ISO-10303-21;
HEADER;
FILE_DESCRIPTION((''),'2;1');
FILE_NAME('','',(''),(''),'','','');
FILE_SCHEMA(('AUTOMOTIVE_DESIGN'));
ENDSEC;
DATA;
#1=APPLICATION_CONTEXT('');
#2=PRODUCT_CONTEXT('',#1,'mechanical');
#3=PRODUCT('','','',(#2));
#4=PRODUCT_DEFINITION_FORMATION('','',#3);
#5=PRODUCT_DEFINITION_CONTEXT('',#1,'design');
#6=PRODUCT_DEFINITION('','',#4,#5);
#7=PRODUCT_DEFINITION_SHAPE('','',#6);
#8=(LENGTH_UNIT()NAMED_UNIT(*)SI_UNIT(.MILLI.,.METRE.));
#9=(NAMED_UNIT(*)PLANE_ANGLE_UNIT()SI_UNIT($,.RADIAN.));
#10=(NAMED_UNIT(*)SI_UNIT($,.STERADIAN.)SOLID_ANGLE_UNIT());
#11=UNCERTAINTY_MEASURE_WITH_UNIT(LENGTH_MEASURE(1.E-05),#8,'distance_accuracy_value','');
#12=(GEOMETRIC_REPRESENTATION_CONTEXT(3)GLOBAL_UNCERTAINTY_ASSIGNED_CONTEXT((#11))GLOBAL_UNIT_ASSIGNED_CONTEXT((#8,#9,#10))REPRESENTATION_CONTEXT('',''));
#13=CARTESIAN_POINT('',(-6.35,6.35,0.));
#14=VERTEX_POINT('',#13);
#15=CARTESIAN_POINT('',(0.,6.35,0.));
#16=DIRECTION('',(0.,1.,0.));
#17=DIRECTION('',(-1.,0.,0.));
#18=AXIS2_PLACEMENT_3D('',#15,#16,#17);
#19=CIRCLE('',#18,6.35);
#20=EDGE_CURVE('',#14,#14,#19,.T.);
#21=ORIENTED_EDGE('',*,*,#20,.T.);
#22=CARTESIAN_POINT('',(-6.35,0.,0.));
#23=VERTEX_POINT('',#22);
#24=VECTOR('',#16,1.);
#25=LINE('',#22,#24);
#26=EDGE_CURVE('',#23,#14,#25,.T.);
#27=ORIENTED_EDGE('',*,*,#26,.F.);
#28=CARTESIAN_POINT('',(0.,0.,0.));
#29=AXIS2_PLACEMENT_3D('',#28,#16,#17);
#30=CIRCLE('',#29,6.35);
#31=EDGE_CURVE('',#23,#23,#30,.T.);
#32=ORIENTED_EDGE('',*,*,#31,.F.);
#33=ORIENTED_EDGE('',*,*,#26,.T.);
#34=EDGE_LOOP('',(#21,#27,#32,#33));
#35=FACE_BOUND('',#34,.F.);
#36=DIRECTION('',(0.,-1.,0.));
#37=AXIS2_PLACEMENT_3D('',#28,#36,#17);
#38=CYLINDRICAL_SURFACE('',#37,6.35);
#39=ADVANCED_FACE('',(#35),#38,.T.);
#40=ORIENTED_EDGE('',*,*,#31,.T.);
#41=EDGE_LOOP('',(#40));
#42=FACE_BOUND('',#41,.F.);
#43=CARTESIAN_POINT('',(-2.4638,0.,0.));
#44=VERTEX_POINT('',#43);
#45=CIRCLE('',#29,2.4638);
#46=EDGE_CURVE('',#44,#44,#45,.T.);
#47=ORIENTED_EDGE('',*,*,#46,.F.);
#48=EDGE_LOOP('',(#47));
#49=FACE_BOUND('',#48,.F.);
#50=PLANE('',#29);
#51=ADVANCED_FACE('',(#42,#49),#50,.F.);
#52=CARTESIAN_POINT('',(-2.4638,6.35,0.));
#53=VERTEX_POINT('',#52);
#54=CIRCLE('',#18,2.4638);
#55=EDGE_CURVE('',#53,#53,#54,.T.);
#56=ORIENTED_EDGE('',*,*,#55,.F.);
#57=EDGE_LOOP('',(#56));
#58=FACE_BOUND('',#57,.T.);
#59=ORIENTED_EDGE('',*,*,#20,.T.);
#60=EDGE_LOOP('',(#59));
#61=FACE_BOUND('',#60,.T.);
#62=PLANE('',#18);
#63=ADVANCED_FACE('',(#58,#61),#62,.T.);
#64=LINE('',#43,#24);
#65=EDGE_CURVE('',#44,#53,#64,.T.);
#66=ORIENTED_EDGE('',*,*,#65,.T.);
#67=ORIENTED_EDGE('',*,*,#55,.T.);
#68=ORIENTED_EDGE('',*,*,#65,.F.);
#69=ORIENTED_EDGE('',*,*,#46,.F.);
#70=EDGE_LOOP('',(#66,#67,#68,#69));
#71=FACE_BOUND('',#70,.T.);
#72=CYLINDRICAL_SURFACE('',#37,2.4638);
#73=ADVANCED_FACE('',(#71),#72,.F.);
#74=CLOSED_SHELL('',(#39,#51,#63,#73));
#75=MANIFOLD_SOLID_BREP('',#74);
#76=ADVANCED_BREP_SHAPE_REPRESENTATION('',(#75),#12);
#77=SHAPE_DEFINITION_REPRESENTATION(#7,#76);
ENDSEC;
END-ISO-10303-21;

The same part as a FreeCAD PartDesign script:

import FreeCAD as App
import Part
import Sketcher
Q = App.Units.Quantity

doc = App.newDocument("Part")
body = doc.addObject("PartDesign::Body", "Body")

sketch1 = body.newObject("Sketcher::SketchObject", "Sketch")
sketch1.AttachmentSupport = (doc.getObject("XZ_Plane"), [""])
sketch1.MapMode = "FlatFace"
sketch1.addGeometry(Part.Circle(App.Vector(0, 0, 0), App.Vector(0, 0, 1), 6.3), False)
sketch1.addGeometry(Part.Circle(App.Vector(0, 0, 0), App.Vector(0, 0, 1), 2.5), False)
sketch1.addConstraint(Sketcher.Constraint("Coincident", 0, 3, -1, 1))
sketch1.addConstraint(Sketcher.Constraint("Coincident", 1, 3, -1, 1))
sketch1.addConstraint(Sketcher.Constraint("Diameter", 0, Q("0.5 in")))
sketch1.addConstraint(Sketcher.Constraint("Diameter", 1, Q("0.194 in")))
pad1 = body.newObject("PartDesign::Pad", "Pad")
pad1.Profile = sketch1
pad1.Length = Q("0.25 in")
pad1.Reversed = True

doc.recompute()
